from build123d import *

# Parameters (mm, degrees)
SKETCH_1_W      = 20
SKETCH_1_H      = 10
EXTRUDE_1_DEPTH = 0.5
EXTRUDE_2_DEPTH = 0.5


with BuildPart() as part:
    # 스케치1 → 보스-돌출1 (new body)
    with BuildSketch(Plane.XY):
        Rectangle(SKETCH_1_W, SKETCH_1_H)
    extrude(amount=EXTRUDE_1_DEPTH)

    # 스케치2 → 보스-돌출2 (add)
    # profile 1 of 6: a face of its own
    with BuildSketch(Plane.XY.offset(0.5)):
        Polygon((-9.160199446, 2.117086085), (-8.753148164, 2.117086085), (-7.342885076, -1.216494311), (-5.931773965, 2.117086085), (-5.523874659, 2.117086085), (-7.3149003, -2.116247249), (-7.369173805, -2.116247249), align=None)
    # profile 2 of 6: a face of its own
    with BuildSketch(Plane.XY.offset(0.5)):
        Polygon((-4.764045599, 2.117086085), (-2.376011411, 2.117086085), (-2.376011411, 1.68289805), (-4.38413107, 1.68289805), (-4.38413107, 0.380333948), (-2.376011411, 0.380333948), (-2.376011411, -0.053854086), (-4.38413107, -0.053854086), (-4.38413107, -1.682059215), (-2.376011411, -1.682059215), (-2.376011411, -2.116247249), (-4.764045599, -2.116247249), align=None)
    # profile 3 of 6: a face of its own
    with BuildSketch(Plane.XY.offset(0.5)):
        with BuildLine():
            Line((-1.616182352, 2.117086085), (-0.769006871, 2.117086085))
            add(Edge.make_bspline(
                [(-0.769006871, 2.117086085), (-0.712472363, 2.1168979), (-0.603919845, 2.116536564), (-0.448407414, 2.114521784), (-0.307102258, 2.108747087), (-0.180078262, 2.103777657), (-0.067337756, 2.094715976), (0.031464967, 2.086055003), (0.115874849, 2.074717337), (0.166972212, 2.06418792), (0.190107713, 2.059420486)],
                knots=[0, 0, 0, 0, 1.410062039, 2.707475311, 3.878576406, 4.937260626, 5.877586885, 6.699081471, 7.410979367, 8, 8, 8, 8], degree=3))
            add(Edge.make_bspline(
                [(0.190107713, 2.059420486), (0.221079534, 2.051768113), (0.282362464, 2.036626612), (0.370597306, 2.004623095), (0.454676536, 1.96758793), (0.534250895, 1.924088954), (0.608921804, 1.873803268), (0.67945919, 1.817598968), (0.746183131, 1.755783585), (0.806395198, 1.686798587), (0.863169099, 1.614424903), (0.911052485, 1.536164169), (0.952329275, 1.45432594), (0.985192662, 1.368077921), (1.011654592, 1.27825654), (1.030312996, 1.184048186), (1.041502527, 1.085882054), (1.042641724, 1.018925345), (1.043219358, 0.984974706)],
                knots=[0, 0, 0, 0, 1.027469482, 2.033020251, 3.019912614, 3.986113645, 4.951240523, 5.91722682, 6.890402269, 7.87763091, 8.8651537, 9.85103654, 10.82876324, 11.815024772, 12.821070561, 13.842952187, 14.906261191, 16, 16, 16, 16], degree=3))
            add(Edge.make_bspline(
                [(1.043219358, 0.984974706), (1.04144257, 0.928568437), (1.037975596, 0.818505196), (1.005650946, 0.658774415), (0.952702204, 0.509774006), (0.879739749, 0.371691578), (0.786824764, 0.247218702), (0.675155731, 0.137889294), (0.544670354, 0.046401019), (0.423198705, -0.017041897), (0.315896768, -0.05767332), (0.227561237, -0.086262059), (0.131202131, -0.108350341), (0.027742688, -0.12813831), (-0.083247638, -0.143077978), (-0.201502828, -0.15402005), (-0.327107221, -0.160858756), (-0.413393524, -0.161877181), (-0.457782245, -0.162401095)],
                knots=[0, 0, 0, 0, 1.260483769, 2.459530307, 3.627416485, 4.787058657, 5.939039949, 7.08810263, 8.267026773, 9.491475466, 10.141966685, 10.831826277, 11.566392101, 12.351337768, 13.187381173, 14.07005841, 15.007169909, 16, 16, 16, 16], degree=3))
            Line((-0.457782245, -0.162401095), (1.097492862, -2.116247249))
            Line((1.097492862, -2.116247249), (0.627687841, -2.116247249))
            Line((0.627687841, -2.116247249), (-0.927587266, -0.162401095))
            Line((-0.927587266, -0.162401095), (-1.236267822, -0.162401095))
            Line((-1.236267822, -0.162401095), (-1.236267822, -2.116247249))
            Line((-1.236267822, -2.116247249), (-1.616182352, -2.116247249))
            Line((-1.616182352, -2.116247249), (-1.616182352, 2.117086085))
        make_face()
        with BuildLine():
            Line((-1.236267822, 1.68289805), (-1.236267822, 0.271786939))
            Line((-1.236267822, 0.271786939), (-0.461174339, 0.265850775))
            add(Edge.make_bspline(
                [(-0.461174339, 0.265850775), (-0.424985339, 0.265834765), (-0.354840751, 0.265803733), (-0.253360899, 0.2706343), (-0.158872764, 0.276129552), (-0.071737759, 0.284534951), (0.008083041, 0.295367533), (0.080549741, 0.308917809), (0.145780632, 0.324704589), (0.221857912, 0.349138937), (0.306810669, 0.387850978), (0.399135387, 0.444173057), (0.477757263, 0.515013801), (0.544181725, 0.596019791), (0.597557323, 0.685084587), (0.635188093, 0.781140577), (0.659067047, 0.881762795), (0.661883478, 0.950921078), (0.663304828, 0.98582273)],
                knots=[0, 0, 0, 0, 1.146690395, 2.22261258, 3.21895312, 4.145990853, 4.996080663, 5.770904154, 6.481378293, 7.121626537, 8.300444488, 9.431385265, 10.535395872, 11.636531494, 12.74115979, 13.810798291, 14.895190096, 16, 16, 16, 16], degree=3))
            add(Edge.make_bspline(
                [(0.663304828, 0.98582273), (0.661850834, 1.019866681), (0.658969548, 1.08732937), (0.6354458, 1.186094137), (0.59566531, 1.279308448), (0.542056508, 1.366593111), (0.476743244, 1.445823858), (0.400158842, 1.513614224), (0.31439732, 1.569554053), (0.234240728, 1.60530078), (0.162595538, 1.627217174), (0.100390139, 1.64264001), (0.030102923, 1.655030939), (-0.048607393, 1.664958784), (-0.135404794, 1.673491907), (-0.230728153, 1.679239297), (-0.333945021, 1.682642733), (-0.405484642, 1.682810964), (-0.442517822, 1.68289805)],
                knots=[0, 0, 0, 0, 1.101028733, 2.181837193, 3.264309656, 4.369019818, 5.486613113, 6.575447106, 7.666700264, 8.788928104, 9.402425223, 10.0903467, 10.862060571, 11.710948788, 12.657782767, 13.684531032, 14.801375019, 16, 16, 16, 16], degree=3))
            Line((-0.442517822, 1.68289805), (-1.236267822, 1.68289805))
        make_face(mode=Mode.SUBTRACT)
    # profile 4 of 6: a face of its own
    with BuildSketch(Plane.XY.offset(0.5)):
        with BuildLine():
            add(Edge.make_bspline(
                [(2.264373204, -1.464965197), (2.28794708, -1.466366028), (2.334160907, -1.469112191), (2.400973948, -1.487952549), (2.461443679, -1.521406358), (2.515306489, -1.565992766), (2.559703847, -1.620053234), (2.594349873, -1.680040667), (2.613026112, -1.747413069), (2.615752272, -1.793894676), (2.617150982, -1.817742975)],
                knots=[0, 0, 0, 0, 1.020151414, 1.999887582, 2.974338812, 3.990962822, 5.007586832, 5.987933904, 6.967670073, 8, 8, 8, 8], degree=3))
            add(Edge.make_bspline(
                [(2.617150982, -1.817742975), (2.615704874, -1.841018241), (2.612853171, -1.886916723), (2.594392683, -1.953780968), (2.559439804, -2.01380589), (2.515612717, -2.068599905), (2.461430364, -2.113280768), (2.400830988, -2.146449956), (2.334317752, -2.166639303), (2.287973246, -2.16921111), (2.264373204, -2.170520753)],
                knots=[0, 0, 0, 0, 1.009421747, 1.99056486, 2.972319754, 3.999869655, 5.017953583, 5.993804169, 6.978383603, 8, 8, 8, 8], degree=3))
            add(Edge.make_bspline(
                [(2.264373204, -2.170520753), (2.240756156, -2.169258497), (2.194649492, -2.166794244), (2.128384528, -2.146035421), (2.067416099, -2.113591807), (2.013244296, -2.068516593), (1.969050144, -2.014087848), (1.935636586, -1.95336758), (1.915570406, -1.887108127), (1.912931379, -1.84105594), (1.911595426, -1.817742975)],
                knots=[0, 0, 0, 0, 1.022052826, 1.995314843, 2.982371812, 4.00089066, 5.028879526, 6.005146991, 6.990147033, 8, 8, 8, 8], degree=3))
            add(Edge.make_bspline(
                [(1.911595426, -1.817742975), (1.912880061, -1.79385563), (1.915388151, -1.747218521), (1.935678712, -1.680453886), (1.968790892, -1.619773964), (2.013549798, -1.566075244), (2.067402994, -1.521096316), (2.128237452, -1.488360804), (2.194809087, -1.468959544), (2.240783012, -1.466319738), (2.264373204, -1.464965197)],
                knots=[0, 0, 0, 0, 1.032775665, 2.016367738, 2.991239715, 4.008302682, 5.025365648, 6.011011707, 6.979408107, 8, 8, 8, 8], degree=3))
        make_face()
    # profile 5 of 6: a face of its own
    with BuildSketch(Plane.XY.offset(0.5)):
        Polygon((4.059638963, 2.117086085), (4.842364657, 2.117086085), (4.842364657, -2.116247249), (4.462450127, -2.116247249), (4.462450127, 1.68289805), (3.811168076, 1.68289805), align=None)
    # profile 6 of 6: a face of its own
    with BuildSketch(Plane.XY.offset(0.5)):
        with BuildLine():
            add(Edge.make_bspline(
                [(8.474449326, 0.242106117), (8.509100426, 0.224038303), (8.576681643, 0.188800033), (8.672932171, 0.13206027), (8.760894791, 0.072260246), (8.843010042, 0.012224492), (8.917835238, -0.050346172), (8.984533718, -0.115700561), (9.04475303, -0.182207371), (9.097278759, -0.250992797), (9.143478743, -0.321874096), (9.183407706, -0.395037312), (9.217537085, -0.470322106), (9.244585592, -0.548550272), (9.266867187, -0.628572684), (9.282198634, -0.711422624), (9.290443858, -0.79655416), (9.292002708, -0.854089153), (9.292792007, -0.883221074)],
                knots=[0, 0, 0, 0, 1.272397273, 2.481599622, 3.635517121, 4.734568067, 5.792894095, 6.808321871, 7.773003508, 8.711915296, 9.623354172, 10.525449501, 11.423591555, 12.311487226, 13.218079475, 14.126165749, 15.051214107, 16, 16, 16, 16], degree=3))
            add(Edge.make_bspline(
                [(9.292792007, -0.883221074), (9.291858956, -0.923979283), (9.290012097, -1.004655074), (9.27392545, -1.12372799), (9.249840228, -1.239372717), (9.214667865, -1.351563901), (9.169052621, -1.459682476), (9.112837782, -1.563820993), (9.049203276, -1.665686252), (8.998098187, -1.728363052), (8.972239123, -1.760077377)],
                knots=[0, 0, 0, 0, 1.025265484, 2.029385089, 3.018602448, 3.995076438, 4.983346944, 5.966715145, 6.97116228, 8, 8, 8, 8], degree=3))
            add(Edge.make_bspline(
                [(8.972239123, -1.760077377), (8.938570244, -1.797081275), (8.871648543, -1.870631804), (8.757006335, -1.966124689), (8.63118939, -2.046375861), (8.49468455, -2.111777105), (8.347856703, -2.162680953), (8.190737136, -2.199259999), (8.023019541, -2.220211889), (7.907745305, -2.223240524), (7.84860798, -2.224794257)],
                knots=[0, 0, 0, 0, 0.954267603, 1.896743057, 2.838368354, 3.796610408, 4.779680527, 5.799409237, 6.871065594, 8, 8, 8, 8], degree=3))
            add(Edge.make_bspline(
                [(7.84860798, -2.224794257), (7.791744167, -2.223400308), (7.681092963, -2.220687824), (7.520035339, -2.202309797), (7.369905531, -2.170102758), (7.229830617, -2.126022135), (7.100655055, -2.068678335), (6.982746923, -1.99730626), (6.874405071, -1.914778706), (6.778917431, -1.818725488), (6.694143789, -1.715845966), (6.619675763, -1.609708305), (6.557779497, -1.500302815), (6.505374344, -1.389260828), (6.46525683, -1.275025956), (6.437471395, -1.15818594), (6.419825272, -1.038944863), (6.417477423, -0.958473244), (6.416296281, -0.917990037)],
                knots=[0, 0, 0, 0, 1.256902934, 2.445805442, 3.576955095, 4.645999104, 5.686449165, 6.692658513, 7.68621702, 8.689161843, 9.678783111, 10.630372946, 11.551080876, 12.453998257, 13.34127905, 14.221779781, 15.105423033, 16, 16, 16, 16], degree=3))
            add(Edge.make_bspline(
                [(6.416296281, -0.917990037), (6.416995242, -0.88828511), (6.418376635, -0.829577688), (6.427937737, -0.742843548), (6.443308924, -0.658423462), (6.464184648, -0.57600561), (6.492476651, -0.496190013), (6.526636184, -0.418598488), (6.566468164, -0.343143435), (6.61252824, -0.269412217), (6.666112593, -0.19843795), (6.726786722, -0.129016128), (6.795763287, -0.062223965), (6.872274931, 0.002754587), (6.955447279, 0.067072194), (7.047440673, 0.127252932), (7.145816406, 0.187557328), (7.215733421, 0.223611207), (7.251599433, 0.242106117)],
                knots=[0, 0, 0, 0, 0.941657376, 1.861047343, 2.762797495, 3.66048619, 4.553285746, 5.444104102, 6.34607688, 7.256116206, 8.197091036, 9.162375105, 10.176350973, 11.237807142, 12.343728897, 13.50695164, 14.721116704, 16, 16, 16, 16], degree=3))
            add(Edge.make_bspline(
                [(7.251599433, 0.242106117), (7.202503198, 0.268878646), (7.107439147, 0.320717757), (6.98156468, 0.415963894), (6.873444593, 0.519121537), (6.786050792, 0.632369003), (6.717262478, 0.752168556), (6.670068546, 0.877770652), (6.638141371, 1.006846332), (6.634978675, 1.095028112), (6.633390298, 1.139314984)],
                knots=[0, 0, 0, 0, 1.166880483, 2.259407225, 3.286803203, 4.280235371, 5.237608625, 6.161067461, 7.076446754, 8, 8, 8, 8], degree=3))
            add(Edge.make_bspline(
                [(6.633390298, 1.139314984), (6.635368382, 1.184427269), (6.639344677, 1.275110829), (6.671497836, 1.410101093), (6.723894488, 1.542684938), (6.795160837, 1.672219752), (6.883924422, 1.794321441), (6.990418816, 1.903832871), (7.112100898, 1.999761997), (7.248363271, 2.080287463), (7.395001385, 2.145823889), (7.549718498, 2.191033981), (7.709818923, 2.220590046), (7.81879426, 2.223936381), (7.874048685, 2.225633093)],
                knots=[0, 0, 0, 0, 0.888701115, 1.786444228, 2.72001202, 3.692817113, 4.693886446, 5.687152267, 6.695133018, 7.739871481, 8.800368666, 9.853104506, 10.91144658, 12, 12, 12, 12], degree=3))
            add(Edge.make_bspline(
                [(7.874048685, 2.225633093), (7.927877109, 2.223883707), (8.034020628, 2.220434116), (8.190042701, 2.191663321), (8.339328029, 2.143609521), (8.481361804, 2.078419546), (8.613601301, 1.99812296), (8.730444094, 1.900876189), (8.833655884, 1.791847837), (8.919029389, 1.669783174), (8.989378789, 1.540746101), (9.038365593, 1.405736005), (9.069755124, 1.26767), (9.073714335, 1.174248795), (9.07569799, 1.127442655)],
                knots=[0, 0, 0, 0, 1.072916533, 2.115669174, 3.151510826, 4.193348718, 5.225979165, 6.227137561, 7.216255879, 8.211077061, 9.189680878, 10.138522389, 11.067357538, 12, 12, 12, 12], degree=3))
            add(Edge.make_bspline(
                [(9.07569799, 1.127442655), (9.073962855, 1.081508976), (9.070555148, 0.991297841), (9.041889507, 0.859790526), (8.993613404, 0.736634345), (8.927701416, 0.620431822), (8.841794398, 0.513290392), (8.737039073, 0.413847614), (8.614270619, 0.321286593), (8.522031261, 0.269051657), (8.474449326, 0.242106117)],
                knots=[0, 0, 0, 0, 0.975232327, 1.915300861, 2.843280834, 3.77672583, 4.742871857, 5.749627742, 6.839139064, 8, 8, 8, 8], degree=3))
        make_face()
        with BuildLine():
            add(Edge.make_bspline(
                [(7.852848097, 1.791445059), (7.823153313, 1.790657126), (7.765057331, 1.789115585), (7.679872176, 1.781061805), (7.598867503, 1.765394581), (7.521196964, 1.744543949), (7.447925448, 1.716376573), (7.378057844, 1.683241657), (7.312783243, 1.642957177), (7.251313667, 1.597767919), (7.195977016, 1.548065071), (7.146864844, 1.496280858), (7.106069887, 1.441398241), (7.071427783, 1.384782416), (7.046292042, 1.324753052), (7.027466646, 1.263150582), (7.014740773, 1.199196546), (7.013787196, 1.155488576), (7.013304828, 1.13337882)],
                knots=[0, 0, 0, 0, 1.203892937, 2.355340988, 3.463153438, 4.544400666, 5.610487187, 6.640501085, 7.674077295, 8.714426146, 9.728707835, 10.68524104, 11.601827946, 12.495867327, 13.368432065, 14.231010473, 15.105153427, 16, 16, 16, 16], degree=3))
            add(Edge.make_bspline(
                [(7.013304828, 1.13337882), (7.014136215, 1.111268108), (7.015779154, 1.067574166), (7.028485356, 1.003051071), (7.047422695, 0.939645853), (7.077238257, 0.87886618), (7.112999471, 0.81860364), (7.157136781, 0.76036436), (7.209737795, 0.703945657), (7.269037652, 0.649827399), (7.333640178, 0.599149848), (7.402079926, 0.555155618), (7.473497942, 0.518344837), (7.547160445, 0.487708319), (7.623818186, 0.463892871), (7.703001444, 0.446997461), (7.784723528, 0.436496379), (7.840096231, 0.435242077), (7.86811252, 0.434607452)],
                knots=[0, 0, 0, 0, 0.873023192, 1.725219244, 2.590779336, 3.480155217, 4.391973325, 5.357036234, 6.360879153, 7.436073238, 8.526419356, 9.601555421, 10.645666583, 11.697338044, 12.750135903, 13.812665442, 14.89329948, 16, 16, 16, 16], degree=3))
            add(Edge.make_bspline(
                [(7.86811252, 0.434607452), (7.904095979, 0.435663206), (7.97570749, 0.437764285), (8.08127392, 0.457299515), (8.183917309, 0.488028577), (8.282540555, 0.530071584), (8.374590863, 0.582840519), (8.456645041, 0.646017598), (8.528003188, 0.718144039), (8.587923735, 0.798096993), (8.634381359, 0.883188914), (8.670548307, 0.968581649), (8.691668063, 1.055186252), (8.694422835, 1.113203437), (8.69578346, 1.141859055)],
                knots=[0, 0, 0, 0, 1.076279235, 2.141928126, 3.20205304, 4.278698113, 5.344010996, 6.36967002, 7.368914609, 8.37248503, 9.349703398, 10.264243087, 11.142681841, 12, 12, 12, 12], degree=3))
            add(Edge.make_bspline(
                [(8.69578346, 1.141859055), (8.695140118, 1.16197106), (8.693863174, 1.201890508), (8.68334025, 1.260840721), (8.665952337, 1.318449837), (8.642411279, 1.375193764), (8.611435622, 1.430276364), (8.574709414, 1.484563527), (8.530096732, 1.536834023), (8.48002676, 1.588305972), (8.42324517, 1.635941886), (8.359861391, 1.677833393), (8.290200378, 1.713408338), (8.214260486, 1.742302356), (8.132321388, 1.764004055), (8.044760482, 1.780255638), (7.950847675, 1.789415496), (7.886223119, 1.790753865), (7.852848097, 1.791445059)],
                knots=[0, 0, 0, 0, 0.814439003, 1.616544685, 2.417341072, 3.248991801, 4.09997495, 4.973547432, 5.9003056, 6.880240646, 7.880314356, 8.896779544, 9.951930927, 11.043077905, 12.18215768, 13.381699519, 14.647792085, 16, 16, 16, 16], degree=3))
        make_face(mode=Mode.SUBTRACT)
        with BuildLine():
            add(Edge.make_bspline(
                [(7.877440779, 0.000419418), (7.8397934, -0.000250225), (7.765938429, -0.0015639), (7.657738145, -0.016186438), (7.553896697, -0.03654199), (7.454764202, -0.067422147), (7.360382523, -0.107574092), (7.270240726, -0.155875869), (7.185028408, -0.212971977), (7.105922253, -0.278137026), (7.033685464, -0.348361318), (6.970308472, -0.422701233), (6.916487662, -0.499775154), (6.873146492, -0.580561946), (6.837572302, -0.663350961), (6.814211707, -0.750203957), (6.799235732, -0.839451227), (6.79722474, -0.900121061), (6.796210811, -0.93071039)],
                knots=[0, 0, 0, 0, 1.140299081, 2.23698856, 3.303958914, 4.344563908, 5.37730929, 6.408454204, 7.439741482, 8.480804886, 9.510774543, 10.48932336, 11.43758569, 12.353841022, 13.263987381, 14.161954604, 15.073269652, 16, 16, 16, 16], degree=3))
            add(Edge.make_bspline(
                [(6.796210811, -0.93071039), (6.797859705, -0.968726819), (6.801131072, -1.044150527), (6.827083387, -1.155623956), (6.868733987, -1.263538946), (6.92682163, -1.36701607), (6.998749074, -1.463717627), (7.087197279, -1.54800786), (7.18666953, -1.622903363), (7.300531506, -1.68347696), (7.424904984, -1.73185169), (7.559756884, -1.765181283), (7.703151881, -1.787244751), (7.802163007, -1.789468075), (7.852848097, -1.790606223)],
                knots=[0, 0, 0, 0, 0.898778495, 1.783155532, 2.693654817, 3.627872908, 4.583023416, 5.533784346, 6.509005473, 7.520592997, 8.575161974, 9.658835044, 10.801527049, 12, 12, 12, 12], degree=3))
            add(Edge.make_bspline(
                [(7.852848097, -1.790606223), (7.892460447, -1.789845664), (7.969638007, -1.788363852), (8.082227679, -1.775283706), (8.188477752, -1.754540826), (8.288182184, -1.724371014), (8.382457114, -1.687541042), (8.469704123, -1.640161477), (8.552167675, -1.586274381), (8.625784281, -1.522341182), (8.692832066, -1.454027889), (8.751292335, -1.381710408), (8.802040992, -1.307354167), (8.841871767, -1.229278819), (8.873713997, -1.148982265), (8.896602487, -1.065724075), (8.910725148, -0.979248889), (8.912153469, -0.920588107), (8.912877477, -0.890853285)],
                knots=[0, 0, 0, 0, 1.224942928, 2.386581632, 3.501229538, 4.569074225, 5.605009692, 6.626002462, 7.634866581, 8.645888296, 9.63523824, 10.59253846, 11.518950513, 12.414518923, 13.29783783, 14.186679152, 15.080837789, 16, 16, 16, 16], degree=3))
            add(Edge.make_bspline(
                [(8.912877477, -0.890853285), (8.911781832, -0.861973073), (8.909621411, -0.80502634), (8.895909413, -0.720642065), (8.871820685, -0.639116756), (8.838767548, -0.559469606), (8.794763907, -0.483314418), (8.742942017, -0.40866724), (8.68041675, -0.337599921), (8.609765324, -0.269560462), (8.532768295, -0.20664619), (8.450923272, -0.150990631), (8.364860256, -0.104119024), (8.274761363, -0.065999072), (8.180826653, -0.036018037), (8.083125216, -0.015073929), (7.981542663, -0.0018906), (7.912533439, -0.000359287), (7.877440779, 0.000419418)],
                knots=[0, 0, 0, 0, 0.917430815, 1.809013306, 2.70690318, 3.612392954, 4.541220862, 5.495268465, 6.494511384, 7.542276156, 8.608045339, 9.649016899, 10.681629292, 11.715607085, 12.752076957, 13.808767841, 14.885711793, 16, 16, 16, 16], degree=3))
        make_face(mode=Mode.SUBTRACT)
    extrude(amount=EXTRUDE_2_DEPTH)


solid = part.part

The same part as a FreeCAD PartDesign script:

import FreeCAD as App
import Part
import Sketcher
Q = App.Units.Quantity

doc = App.newDocument("Part")
body = doc.addObject("PartDesign::Body", "Body")

# Sketch on XY plane
sketch1 = body.newObject("Sketcher::SketchObject", "Sketch")
sketch1.AttachmentSupport = (doc.getObject("XY_Plane"), [""])
sketch1.MapMode = "FlatFace"
sketch1.addGeometry([
    Part.LineSegment(App.Vector(-10, 5, 0), App.Vector(-10, -5, 0)),
    Part.LineSegment(App.Vector(-10, -5, 0), App.Vector(10, -5, 0)),
    Part.LineSegment(App.Vector(10, -5, 0), App.Vector(10, 5, 0)),
    Part.LineSegment(App.Vector(10, 5, 0), App.Vector(-10, 5, 0)),
], False)
sketch1.addConstraint([
    Sketcher.Constraint("Coincident", 0, 2, 1, 1),
    Sketcher.Constraint("Coincident", 1, 2, 2, 1),
    Sketcher.Constraint("Coincident", 2, 2, 3, 1),
    Sketcher.Constraint("Coincident", 3, 2, 0, 1),
    Sketcher.Constraint("Vertical", 0),
    Sketcher.Constraint("Horizontal", 1),
    Sketcher.Constraint("Vertical", 2),
    Sketcher.Constraint("Horizontal", 3),
    Sketcher.Constraint("Symmetric", 0, 2, 2, 2, -1, 1),
    Sketcher.Constraint("DistanceX", 1, 1, 1, 2, Q("20 mm")),
    Sketcher.Constraint("DistanceY", 0, 2, 0, 1, Q("10 mm")),
])
pad1 = body.newObject("PartDesign::Pad", "Pad")
pad1.Profile = sketch1
pad1.Length = 0.5

# Sketch on XY plane
sketch2 = body.newObject("Sketcher::SketchObject", "Sketch001")
sketch2.AttachmentSupport = (doc.getObject("XY_Plane"), [""])
sketch2.MapMode = "FlatFace"
sketch2.AttachmentOffset = App.Placement(App.Vector(0, 0, 0.5), App.Rotation())
sketch2.addGeometry([
    Part.LineSegment(App.Vector(-8.753148, 2.117086, 0), App.Vector(-9.160199, 2.117086, 0)),  # 0
    Part.LineSegment(App.Vector(-9.160199, 2.117086, 0), App.Vector(-7.369174, -2.116247, 0)),  # 1
    Part.LineSegment(App.Vector(-7.369174, -2.116247, 0), App.Vector(-7.3149, -2.116247, 0)),  # 2
    Part.LineSegment(App.Vector(-7.3149, -2.116247, 0), App.Vector(-5.523875, 2.117086, 0)),  # 3
    Part.LineSegment(App.Vector(-5.523875, 2.117086, 0), App.Vector(-5.931774, 2.117086, 0)),  # 4
    Part.LineSegment(App.Vector(-5.931774, 2.117086, 0), App.Vector(-7.342885, -1.216494, 0)),  # 5
    Part.LineSegment(App.Vector(-7.342885, -1.216494, 0), App.Vector(-8.753148, 2.117086, 0)),  # 6
    Part.LineSegment(App.Vector(-2.376011, 2.117086, 0), App.Vector(-4.764046, 2.117086, 0)),  # 7
    Part.LineSegment(App.Vector(-4.764046, 2.117086, 0), App.Vector(-4.764046, -2.116247, 0)),  # 8
    Part.LineSegment(App.Vector(-4.764046, -2.116247, 0), App.Vector(-2.376011, -2.116247, 0)),  # 9
    Part.LineSegment(App.Vector(-2.376011, -2.116247, 0), App.Vector(-2.376011, -1.682059, 0)),  # 10
    Part.LineSegment(App.Vector(-2.376011, -1.682059, 0), App.Vector(-4.384131, -1.682059, 0)),  # 11
    Part.LineSegment(App.Vector(-4.384131, -1.682059, 0), App.Vector(-4.384131, -0.053854, 0)),  # 12
    Part.LineSegment(App.Vector(-4.384131, -0.053854, 0), App.Vector(-2.376011, -0.053854, 0)),  # 13
    Part.LineSegment(App.Vector(-2.376011, -0.053854, 0), App.Vector(-2.376011, 0.380334, 0)),  # 14
    Part.LineSegment(App.Vector(-2.376011, 0.380334, 0), App.Vector(-4.384131, 0.380334, 0)),  # 15
    Part.LineSegment(App.Vector(-4.384131, 0.380334, 0), App.Vector(-4.384131, 1.682898, 0)),  # 16
    Part.LineSegment(App.Vector(-4.384131, 1.682898, 0), App.Vector(-2.376011, 1.682898, 0)),  # 17
    Part.LineSegment(App.Vector(-2.376011, 1.682898, 0), App.Vector(-2.376011, 2.117086, 0)),  # 18
    Part.LineSegment(App.Vector(-0.769007, 2.117086, 0), App.Vector(-1.616182, 2.117086, 0)),  # 19
    Part.LineSegment(App.Vector(-1.616182, 2.117086, 0), App.Vector(-1.616182, -2.116247, 0)),  # 20
    Part.LineSegment(App.Vector(-1.616182, -2.116247, 0), App.Vector(-1.236268, -2.116247, 0)),  # 21
    Part.LineSegment(App.Vector(-1.236268, -2.116247, 0), App.Vector(-1.236268, -0.162401, 0)),  # 22
    Part.LineSegment(App.Vector(-1.236268, -0.162401, 0), App.Vector(-0.927587, -0.162401, 0)),  # 23
    Part.LineSegment(App.Vector(-0.927587, -0.162401, 0), App.Vector(0.627688, -2.116247, 0)),  # 24
    Part.LineSegment(App.Vector(0.627688, -2.116247, 0), App.Vector(1.097493, -2.116247, 0)),  # 25
    Part.LineSegment(App.Vector(1.097493, -2.116247, 0), App.Vector(-0.457782, -0.162401, 0)),  # 26
    Part.BSplineCurve([App.Vector(1.043219, 0.984975, 0), App.Vector(1.041443, 0.928568, 0), App.Vector(1.037976, 0.818505, 0), App.Vector(1.005651, 0.658774, 0), App.Vector(0.952702, 0.509774, 0), App.Vector(0.87974, 0.371692, 0), App.Vector(0.786825, 0.247219, 0), App.Vector(0.675156, 0.137889, 0), App.Vector(0.54467, 0.046401, 0), App.Vector(0.423199, -0.017042, 0), App.Vector(0.315897, -0.057673, 0), App.Vector(0.227561, -0.086262, 0), App.Vector(0.131202, -0.10835, 0), App.Vector(0.027743, -0.128138, 0), App.Vector(-0.083248, -0.143078, 0), App.Vector(-0.201503, -0.15402, 0), App.Vector(-0.327107, -0.160859, 0), App.Vector(-0.413394, -0.161877, 0), App.Vector(-0.457782, -0.162401, 0)], [4, 1, 1, 1, 1, 1, 1, 1, 1, 1, 1, 1, 1, 1, 1, 1, 4], [0, 1.260483769, 2.459530307, 3.627416485, 4.787058657, 5.939039949, 7.08810263, 8.267026773, 9.491475466, 10.141966685, 10.831826277, 11.566392101, 12.351337768, 13.187381173, 14.07005841, 15.007169909, 16], False, 3, [1, 1, 1, 1, 1, 1, 1, 1, 1, 1, 1, 1, 1, 1, 1, 1, 1, 1, 1], False),  # 27
    Part.BSplineCurve([App.Vector(0.190108, 2.05942, 0), App.Vector(0.22108, 2.051768, 0), App.Vector(0.282362, 2.036627, 0), App.Vector(0.370597, 2.004623, 0), App.Vector(0.454677, 1.967588, 0), App.Vector(0.534251, 1.924089, 0), App.Vector(0.608922, 1.873803, 0), App.Vector(0.679459, 1.817599, 0), App.Vector(0.746183, 1.755784, 0), App.Vector(0.806395, 1.686799, 0), App.Vector(0.863169, 1.614425, 0), App.Vector(0.911052, 1.536164, 0), App.Vector(0.952329, 1.454326, 0), App.Vector(0.985193, 1.368078, 0), App.Vector(1.011655, 1.278257, 0), App.Vector(1.030313, 1.184048, 0), App.Vector(1.041503, 1.085882, 0), App.Vector(1.042642, 1.018925, 0), App.Vector(1.043219, 0.984975, 0)], [4, 1, 1, 1, 1, 1, 1, 1, 1, 1, 1, 1, 1, 1, 1, 1, 4], [0, 1.027469482, 2.033020251, 3.019912614, 3.986113645, 4.951240523, 5.91722682, 6.890402269, 7.87763091, 8.8651537, 9.85103654, 10.82876324, 11.815024772, 12.821070561, 13.842952187, 14.906261191, 16], False, 3, [1, 1, 1, 1, 1, 1, 1, 1, 1, 1, 1, 1, 1, 1, 1, 1, 1, 1, 1], False),  # 28
    Part.BSplineCurve([App.Vector(-0.769007, 2.117086, 0), App.Vector(-0.712472, 2.116898, 0), App.Vector(-0.60392, 2.116537, 0), App.Vector(-0.448407, 2.114522, 0), App.Vector(-0.307102, 2.108747, 0), App.Vector(-0.180078, 2.103778, 0), App.Vector(-0.067338, 2.094716, 0), App.Vector(0.031465, 2.086055, 0), App.Vector(0.115875, 2.074717, 0), App.Vector(0.166972, 2.064188, 0), App.Vector(0.190108, 2.05942, 0)], [4, 1, 1, 1, 1, 1, 1, 1, 4], [0, 1.410062039, 2.707475311, 3.878576406, 4.937260626, 5.877586885, 6.699081471, 7.410979367, 8], False, 3, [1, 1, 1, 1, 1, 1, 1, 1, 1, 1, 1], False),  # 29
    Part.LineSegment(App.Vector(-1.236268, 1.682898, 0), App.Vector(-0.442518, 1.682898, 0)),  # 30
    Part.BSplineCurve([App.Vector(0.663305, 0.985823, 0), App.Vector(0.661851, 1.019867, 0), App.Vector(0.65897, 1.087329, 0), App.Vector(0.635446, 1.186094, 0), App.Vector(0.595665, 1.279308, 0), App.Vector(0.542057, 1.366593, 0), App.Vector(0.476743, 1.445824, 0), App.Vector(0.400159, 1.513614, 0), App.Vector(0.314397, 1.569554, 0), App.Vector(0.234241, 1.605301, 0), App.Vector(0.162596, 1.627217, 0), App.Vector(0.10039, 1.64264, 0), App.Vector(0.030103, 1.655031, 0), App.Vector(-0.048607, 1.664959, 0), App.Vector(-0.135405, 1.673492, 0), App.Vector(-0.230728, 1.679239, 0), App.Vector(-0.333945, 1.682643, 0), App.Vector(-0.405485, 1.682811, 0), App.Vector(-0.442518, 1.682898, 0)], [4, 1, 1, 1, 1, 1, 1, 1, 1, 1, 1, 1, 1, 1, 1, 1, 4], [0, 1.101028733, 2.181837193, 3.264309656, 4.369019818, 5.486613113, 6.575447106, 7.666700264, 8.788928104, 9.402425223, 10.0903467, 10.862060571, 11.710948788, 12.657782767, 13.684531032, 14.801375019, 16], False, 3, [1, 1, 1, 1, 1, 1, 1, 1, 1, 1, 1, 1, 1, 1, 1, 1, 1, 1, 1], False),  # 31
    Part.BSplineCurve([App.Vector(-0.461174, 0.265851, 0), App.Vector(-0.424985, 0.265835, 0), App.Vector(-0.354841, 0.265804, 0), App.Vector(-0.253361, 0.270634, 0), App.Vector(-0.158873, 0.27613, 0), App.Vector(-0.071738, 0.284535, 0), App.Vector(0.008083, 0.295368, 0), App.Vector(0.08055, 0.308918, 0), App.Vector(0.145781, 0.324705, 0), App.Vector(0.221858, 0.349139, 0), App.Vector(0.306811, 0.387851, 0), App.Vector(0.399135, 0.444173, 0), App.Vector(0.477757, 0.515014, 0), App.Vector(0.544182, 0.59602, 0), App.Vector(0.597557, 0.685085, 0), App.Vector(0.635188, 0.781141, 0), App.Vector(0.659067, 0.881763, 0), App.Vector(0.661883, 0.950921, 0), App.Vector(0.663305, 0.985823, 0)], [4, 1, 1, 1, 1, 1, 1, 1, 1, 1, 1, 1, 1, 1, 1, 1, 4], [0, 1.146690395, 2.22261258, 3.21895312, 4.145990853, 4.996080663, 5.770904154, 6.481378293, 7.121626537, 8.300444488, 9.431385265, 10.535395872, 11.636531494, 12.74115979, 13.810798291, 14.895190096, 16], False, 3, [1, 1, 1, 1, 1, 1, 1, 1, 1, 1, 1, 1, 1, 1, 1, 1, 1, 1, 1], False),  # 32
    Part.LineSegment(App.Vector(-0.461174, 0.265851, 0), App.Vector(-1.236268, 0.271787, 0)),  # 33
    Part.LineSegment(App.Vector(-1.236268, 0.271787, 0), App.Vector(-1.236268, 1.682898, 0)),  # 34
    Part.BSplineCurve([App.Vector(2.264373, -1.464965, 0), App.Vector(2.287947, -1.466366, 0), App.Vector(2.334161, -1.469112, 0), App.Vector(2.400974, -1.487953, 0), App.Vector(2.461444, -1.521406, 0), App.Vector(2.515306, -1.565993, 0), App.Vector(2.559704, -1.620053, 0), App.Vector(2.59435, -1.680041, 0), App.Vector(2.613026, -1.747413, 0), App.Vector(2.615752, -1.793895, 0), App.Vector(2.617151, -1.817743, 0)], [4, 1, 1, 1, 1, 1, 1, 1, 4], [0, 1.020151414, 1.999887582, 2.974338812, 3.990962822, 5.007586832, 5.987933904, 6.967670073, 8], False, 3, [1, 1, 1, 1, 1, 1, 1, 1, 1, 1, 1], False),  # 35
    Part.BSplineCurve([App.Vector(1.911595, -1.817743, 0), App.Vector(1.91288, -1.793856, 0), App.Vector(1.915388, -1.747219, 0), App.Vector(1.935679, -1.680454, 0), App.Vector(1.968791, -1.619774, 0), App.Vector(2.01355, -1.566075, 0), App.Vector(2.067403, -1.521096, 0), App.Vector(2.128237, -1.488361, 0), App.Vector(2.194809, -1.46896, 0), App.Vector(2.240783, -1.46632, 0), App.Vector(2.264373, -1.464965, 0)], [4, 1, 1, 1, 1, 1, 1, 1, 4], [0, 1.032775665, 2.016367738, 2.991239715, 4.008302682, 5.025365648, 6.011011707, 6.979408107, 8], False, 3, [1, 1, 1, 1, 1, 1, 1, 1, 1, 1, 1], False),  # 36
    Part.BSplineCurve([App.Vector(2.264373, -2.170521, 0), App.Vector(2.240756, -2.169258, 0), App.Vector(2.194649, -2.166794, 0), App.Vector(2.128385, -2.146035, 0), App.Vector(2.067416, -2.113592, 0), App.Vector(2.013244, -2.068517, 0), App.Vector(1.96905, -2.014088, 0), App.Vector(1.935637, -1.953368, 0), App.Vector(1.91557, -1.887108, 0), App.Vector(1.912931, -1.841056, 0), App.Vector(1.911595, -1.817743, 0)], [4, 1, 1, 1, 1, 1, 1, 1, 4], [0, 1.022052826, 1.995314843, 2.982371812, 4.00089066, 5.028879526, 6.005146991, 6.990147033, 8], False, 3, [1, 1, 1, 1, 1, 1, 1, 1, 1, 1, 1], False),  # 37
    Part.BSplineCurve([App.Vector(2.617151, -1.817743, 0), App.Vector(2.615705, -1.841018, 0), App.Vector(2.612853, -1.886917, 0), App.Vector(2.594393, -1.953781, 0), App.Vector(2.55944, -2.013806, 0), App.Vector(2.515613, -2.0686, 0), App.Vector(2.46143, -2.113281, 0), App.Vector(2.400831, -2.14645, 0), App.Vector(2.334318, -2.166639, 0), App.Vector(2.287973, -2.169211, 0), App.Vector(2.264373, -2.170521, 0)], [4, 1, 1, 1, 1, 1, 1, 1, 4], [0, 1.009421747, 1.99056486, 2.972319754, 3.999869655, 5.017953583, 5.993804169, 6.978383603, 8], False, 3, [1, 1, 1, 1, 1, 1, 1, 1, 1, 1, 1], False),  # 38
    Part.LineSegment(App.Vector(4.842365, 2.117086, 0), App.Vector(4.059639, 2.117086, 0)),  # 39
    Part.LineSegment(App.Vector(4.059639, 2.117086, 0), App.Vector(3.811168, 1.682898, 0)),  # 40
    Part.LineSegment(App.Vector(3.811168, 1.682898, 0), App.Vector(4.46245, 1.682898, 0)),  # 41
    Part.LineSegment(App.Vector(4.46245, 1.682898, 0), App.Vector(4.46245, -2.116247, 0)),  # 42
    Part.LineSegment(App.Vector(4.46245, -2.116247, 0), App.Vector(4.842365, -2.116247, 0)),  # 43
    Part.LineSegment(App.Vector(4.842365, -2.116247, 0), App.Vector(4.842365, 2.117086, 0)),  # 44
    Part.BSplineCurve([App.Vector(8.474449, 0.242106, 0), App.Vector(8.5091, 0.224038, 0), App.Vector(8.576682, 0.1888, 0), App.Vector(8.672932, 0.13206, 0), App.Vector(8.760895, 0.07226, 0), App.Vector(8.84301, 0.012224, 0), App.Vector(8.917835, -0.050346, 0), App.Vector(8.984534, -0.115701, 0), App.Vector(9.044753, -0.182207, 0), App.Vector(9.097279, -0.250993, 0), App.Vector(9.143479, -0.321874, 0), App.Vector(9.183408, -0.395037, 0), App.Vector(9.217537, -0.470322, 0), App.Vector(9.244586, -0.54855, 0), App.Vector(9.266867, -0.628573, 0), App.Vector(9.282199, -0.711423, 0), App.Vector(9.290444, -0.796554, 0), App.Vector(9.292003, -0.854089, 0), App.Vector(9.292792, -0.883221, 0)], [4, 1, 1, 1, 1, 1, 1, 1, 1, 1, 1, 1, 1, 1, 1, 1, 4], [0, 1.272397273, 2.481599622, 3.635517121, 4.734568067, 5.792894095, 6.808321871, 7.773003508, 8.711915296, 9.623354172, 10.525449501, 11.423591555, 12.311487226, 13.218079475, 14.126165749, 15.051214107, 16], False, 3, [1, 1, 1, 1, 1, 1, 1, 1, 1, 1, 1, 1, 1, 1, 1, 1, 1, 1, 1], False),  # 45
    Part.BSplineCurve([App.Vector(9.075698, 1.127443, 0), App.Vector(9.073963, 1.081509, 0), App.Vector(9.070555, 0.991298, 0), App.Vector(9.04189, 0.859791, 0), App.Vector(8.993613, 0.736634, 0), App.Vector(8.927701, 0.620432, 0), App.Vector(8.841794, 0.51329, 0), App.Vector(8.737039, 0.413848, 0), App.Vector(8.614271, 0.321287, 0), App.Vector(8.522031, 0.269052, 0), App.Vector(8.474449, 0.242106, 0)], [4, 1, 1, 1, 1, 1, 1, 1, 4], [0, 0.975232327, 1.915300861, 2.843280834, 3.77672583, 4.742871857, 5.749627742, 6.839139064, 8], False, 3, [1, 1, 1, 1, 1, 1, 1, 1, 1, 1, 1], False),  # 46
    Part.BSplineCurve([App.Vector(7.874049, 2.225633, 0), App.Vector(7.927877, 2.223884, 0), App.Vector(8.034021, 2.220434, 0), App.Vector(8.190043, 2.191663, 0), App.Vector(8.339328, 2.14361, 0), App.Vector(8.481362, 2.07842, 0), App.Vector(8.613601, 1.998123, 0), App.Vector(8.730444, 1.900876, 0), App.Vector(8.833656, 1.791848, 0), App.Vector(8.919029, 1.669783, 0), App.Vector(8.989379, 1.540746, 0), App.Vector(9.038366, 1.405736, 0), App.Vector(9.069755, 1.26767, 0), App.Vector(9.073714, 1.174249, 0), App.Vector(9.075698, 1.127443, 0)], [4, 1, 1, 1, 1, 1, 1, 1, 1, 1, 1, 1, 4], [0, 1.072916533, 2.115669174, 3.151510826, 4.193348718, 5.225979165, 6.227137561, 7.216255879, 8.211077061, 9.189680878, 10.138522389, 11.067357538, 12], False, 3, [1, 1, 1, 1, 1, 1, 1, 1, 1, 1, 1, 1, 1, 1, 1], False),  # 47
    Part.BSplineCurve([App.Vector(6.63339, 1.139315, 0), App.Vector(6.635368, 1.184427, 0), App.Vector(6.639345, 1.275111, 0), App.Vector(6.671498, 1.410101, 0), App.Vector(6.723894, 1.542685, 0), App.Vector(6.795161, 1.67222, 0), App.Vector(6.883924, 1.794321, 0), App.Vector(6.990419, 1.903833, 0), App.Vector(7.112101, 1.999762, 0), App.Vector(7.248363, 2.080287, 0), App.Vector(7.395001, 2.145824, 0), App.Vector(7.549718, 2.191034, 0), App.Vector(7.709819, 2.22059, 0), App.Vector(7.818794, 2.223936, 0), App.Vector(7.874049, 2.225633, 0)], [4, 1, 1, 1, 1, 1, 1, 1, 1, 1, 1, 1, 4], [0, 0.888701115, 1.786444228, 2.72001202, 3.692817113, 4.693886446, 5.687152267, 6.695133018, 7.739871481, 8.800368666, 9.853104506, 10.91144658, 12], False, 3, [1, 1, 1, 1, 1, 1, 1, 1, 1, 1, 1, 1, 1, 1, 1], False),  # 48
    Part.BSplineCurve([App.Vector(7.251599, 0.242106, 0), App.Vector(7.202503, 0.268879, 0), App.Vector(7.107439, 0.320718, 0), App.Vector(6.981565, 0.415964, 0), App.Vector(6.873445, 0.519122, 0), App.Vector(6.786051, 0.632369, 0), App.Vector(6.717262, 0.752169, 0), App.Vector(6.670069, 0.877771, 0), App.Vector(6.638141, 1.006846, 0), App.Vector(6.634979, 1.095028, 0), App.Vector(6.63339, 1.139315, 0)], [4, 1, 1, 1, 1, 1, 1, 1, 4], [0, 1.166880483, 2.259407225, 3.286803203, 4.280235371, 5.237608625, 6.161067461, 7.076446754, 8], False, 3, [1, 1, 1, 1, 1, 1, 1, 1, 1, 1, 1], False),  # 49
    Part.BSplineCurve([App.Vector(6.416296, -0.91799, 0), App.Vector(6.416995, -0.888285, 0), App.Vector(6.418377, -0.829578, 0), App.Vector(6.427938, -0.742844, 0), App.Vector(6.443309, -0.658423, 0), App.Vector(6.464185, -0.576006, 0), App.Vector(6.492477, -0.49619, 0), App.Vector(6.526636, -0.418598, 0), App.Vector(6.566468, -0.343143, 0), App.Vector(6.612528, -0.269412, 0), App.Vector(6.666113, -0.198438, 0), App.Vector(6.726787, -0.129016, 0), App.Vector(6.795763, -0.062224, 0), App.Vector(6.872275, 0.002755, 0), App.Vector(6.955447, 0.067072, 0), App.Vector(7.047441, 0.127253, 0), App.Vector(7.145816, 0.187557, 0), App.Vector(7.215733, 0.223611, 0), App.Vector(7.251599, 0.242106, 0)], [4, 1, 1, 1, 1, 1, 1, 1, 1, 1, 1, 1, 1, 1, 1, 1, 4], [0, 0.941657376, 1.861047343, 2.762797495, 3.66048619, 4.553285746, 5.444104102, 6.34607688, 7.256116206, 8.197091036, 9.162375105, 10.176350973, 11.237807142, 12.343728897, 13.50695164, 14.721116704, 16], False, 3, [1, 1, 1, 1, 1, 1, 1, 1, 1, 1, 1, 1, 1, 1, 1, 1, 1, 1, 1], False),  # 50
    Part.BSplineCurve([App.Vector(7.848608, -2.224794, 0), App.Vector(7.791744, -2.2234, 0), App.Vector(7.681093, -2.220688, 0), App.Vector(7.520035, -2.20231, 0), App.Vector(7.369906, -2.170103, 0), App.Vector(7.229831, -2.126022, 0), App.Vector(7.100655, -2.068678, 0), App.Vector(6.982747, -1.997306, 0), App.Vector(6.874405, -1.914779, 0), App.Vector(6.778917, -1.818725, 0), App.Vector(6.694144, -1.715846, 0), App.Vector(6.619676, -1.609708, 0), App.Vector(6.557779, -1.500303, 0), App.Vector(6.505374, -1.389261, 0), App.Vector(6.465257, -1.275026, 0), App.Vector(6.437471, -1.158186, 0), App.Vector(6.419825, -1.038945, 0), App.Vector(6.417477, -0.958473, 0), App.Vector(6.416296, -0.91799, 0)], [4, 1, 1, 1, 1, 1, 1, 1, 1, 1, 1, 1, 1, 1, 1, 1, 4], [0, 1.256902934, 2.445805442, 3.576955095, 4.645999104, 5.686449165, 6.692658513, 7.68621702, 8.689161843, 9.678783111, 10.630372946, 11.551080876, 12.453998257, 13.34127905, 14.221779781, 15.105423033, 16], False, 3, [1, 1, 1, 1, 1, 1, 1, 1, 1, 1, 1, 1, 1, 1, 1, 1, 1, 1, 1], False),  # 51
    Part.BSplineCurve([App.Vector(8.972239, -1.760077, 0), App.Vector(8.93857, -1.797081, 0), App.Vector(8.871649, -1.870632, 0), App.Vector(8.757006, -1.966125, 0), App.Vector(8.631189, -2.046376, 0), App.Vector(8.494685, -2.111777, 0), App.Vector(8.347857, -2.162681, 0), App.Vector(8.190737, -2.19926, 0), App.Vector(8.02302, -2.220212, 0), App.Vector(7.907745, -2.223241, 0), App.Vector(7.848608, -2.224794, 0)], [4, 1, 1, 1, 1, 1, 1, 1, 4], [0, 0.954267603, 1.896743057, 2.838368354, 3.796610408, 4.779680527, 5.799409237, 6.871065594, 8], False, 3, [1, 1, 1, 1, 1, 1, 1, 1, 1, 1, 1], False),  # 52
    Part.BSplineCurve([App.Vector(9.292792, -0.883221, 0), App.Vector(9.291859, -0.923979, 0), App.Vector(9.290012, -1.004655, 0), App.Vector(9.273925, -1.123728, 0), App.Vector(9.24984, -1.239373, 0), App.Vector(9.214668, -1.351564, 0), App.Vector(9.169053, -1.459682, 0), App.Vector(9.112838, -1.563821, 0), App.Vector(9.049203, -1.665686, 0), App.Vector(8.998098, -1.728363, 0), App.Vector(8.972239, -1.760077, 0)], [4, 1, 1, 1, 1, 1, 1, 1, 4], [0, 1.025265484, 2.029385089, 3.018602448, 3.995076438, 4.983346944, 5.966715145, 6.97116228, 8], False, 3, [1, 1, 1, 1, 1, 1, 1, 1, 1, 1, 1], False),  # 53
    Part.BSplineCurve([App.Vector(8.912877, -0.890853, 0), App.Vector(8.911782, -0.861973, 0), App.Vector(8.909621, -0.805026, 0), App.Vector(8.895909, -0.720642, 0), App.Vector(8.871821, -0.639117, 0), App.Vector(8.838768, -0.55947, 0), App.Vector(8.794764, -0.483314, 0), App.Vector(8.742942, -0.408667, 0), App.Vector(8.680417, -0.3376, 0), App.Vector(8.609765, -0.26956, 0), App.Vector(8.532768, -0.206646, 0), App.Vector(8.450923, -0.150991, 0), App.Vector(8.36486, -0.104119, 0), App.Vector(8.274761, -0.065999, 0), App.Vector(8.180827, -0.036018, 0), App.Vector(8.083125, -0.015074, 0), App.Vector(7.981543, -0.001891, 0), App.Vector(7.912533, -0.000359, 0), App.Vector(7.877441, 0.000419, 0)], [4, 1, 1, 1, 1, 1, 1, 1, 1, 1, 1, 1, 1, 1, 1, 1, 4], [0, 0.917430815, 1.809013306, 2.70690318, 3.612392954, 4.541220862, 5.495268465, 6.494511384, 7.542276156, 8.608045339, 9.649016899, 10.681629292, 11.715607085, 12.752076957, 13.808767841, 14.885711793, 16], False, 3, [1, 1, 1, 1, 1, 1, 1, 1, 1, 1, 1, 1, 1, 1, 1, 1, 1, 1, 1], False),  # 54
    Part.BSplineCurve([App.Vector(7.852848, -1.790606, 0), App.Vector(7.89246, -1.789846, 0), App.Vector(7.969638, -1.788364, 0), App.Vector(8.082228, -1.775284, 0), App.Vector(8.188478, -1.754541, 0), App.Vector(8.288182, -1.724371, 0), App.Vector(8.382457, -1.687541, 0), App.Vector(8.469704, -1.640161, 0), App.Vector(8.552168, -1.586274, 0), App.Vector(8.625784, -1.522341, 0), App.Vector(8.692832, -1.454028, 0), App.Vector(8.751292, -1.38171, 0), App.Vector(8.802041, -1.307354, 0), App.Vector(8.841872, -1.229279, 0), App.Vector(8.873714, -1.148982, 0), App.Vector(8.896602, -1.065724, 0), App.Vector(8.910725, -0.979249, 0), App.Vector(8.912153, -0.920588, 0), App.Vector(8.912877, -0.890853, 0)], [4, 1, 1, 1, 1, 1, 1, 1, 1, 1, 1, 1, 1, 1, 1, 1, 4], [0, 1.224942928, 2.386581632, 3.501229538, 4.569074225, 5.605009692, 6.626002462, 7.634866581, 8.645888296, 9.63523824, 10.59253846, 11.518950513, 12.414518923, 13.29783783, 14.186679152, 15.080837789, 16], False, 3, [1, 1, 1, 1, 1, 1, 1, 1, 1, 1, 1, 1, 1, 1, 1, 1, 1, 1, 1], False),  # 55
    Part.BSplineCurve([App.Vector(6.796211, -0.93071, 0), App.Vector(6.79786, -0.968727, 0), App.Vector(6.801131, -1.044151, 0), App.Vector(6.827083, -1.155624, 0), App.Vector(6.868734, -1.263539, 0), App.Vector(6.926822, -1.367016, 0), App.Vector(6.998749, -1.463718, 0), App.Vector(7.087197, -1.548008, 0), App.Vector(7.18667, -1.622903, 0), App.Vector(7.300532, -1.683477, 0), App.Vector(7.424905, -1.731852, 0), App.Vector(7.559757, -1.765181, 0), App.Vector(7.703152, -1.787245, 0), App.Vector(7.802163, -1.789468, 0), App.Vector(7.852848, -1.790606, 0)], [4, 1, 1, 1, 1, 1, 1, 1, 1, 1, 1, 1, 4], [0, 0.898778495, 1.783155532, 2.693654817, 3.627872908, 4.583023416, 5.533784346, 6.509005473, 7.520592997, 8.575161974, 9.658835044, 10.801527049, 12], False, 3, [1, 1, 1, 1, 1, 1, 1, 1, 1, 1, 1, 1, 1, 1, 1], False),  # 56
    Part.BSplineCurve([App.Vector(7.877441, 0.000419, 0), App.Vector(7.839793, -0.00025, 0), App.Vector(7.765938, -0.001564, 0), App.Vector(7.657738, -0.016186, 0), App.Vector(7.553897, -0.036542, 0), App.Vector(7.454764, -0.067422, 0), App.Vector(7.360383, -0.107574, 0), App.Vector(7.270241, -0.155876, 0), App.Vector(7.185028, -0.212972, 0), App.Vector(7.105922, -0.278137, 0), App.Vector(7.033685, -0.348361, 0), App.Vector(6.970308, -0.422701, 0), App.Vector(6.916488, -0.499775, 0), App.Vector(6.873146, -0.580562, 0), App.Vector(6.837572, -0.663351, 0), App.Vector(6.814212, -0.750204, 0), App.Vector(6.799236, -0.839451, 0), App.Vector(6.797225, -0.900121, 0), App.Vector(6.796211, -0.93071, 0)], [4, 1, 1, 1, 1, 1, 1, 1, 1, 1, 1, 1, 1, 1, 1, 1, 4], [0, 1.140299081, 2.23698856, 3.303958914, 4.344563908, 5.37730929, 6.408454204, 7.439741482, 8.480804886, 9.510774543, 10.48932336, 11.43758569, 12.353841022, 13.263987381, 14.161954604, 15.073269652, 16], False, 3, [1, 1, 1, 1, 1, 1, 1, 1, 1, 1, 1, 1, 1, 1, 1, 1, 1, 1, 1], False),  # 57
    Part.BSplineCurve([App.Vector(8.695783, 1.141859, 0), App.Vector(8.69514, 1.161971, 0), App.Vector(8.693863, 1.201891, 0), App.Vector(8.68334, 1.260841, 0), App.Vector(8.665952, 1.31845, 0), App.Vector(8.642411, 1.375194, 0), App.Vector(8.611436, 1.430276, 0), App.Vector(8.574709, 1.484564, 0), App.Vector(8.530097, 1.536834, 0), App.Vector(8.480027, 1.588306, 0), App.Vector(8.423245, 1.635942, 0), App.Vector(8.359861, 1.677833, 0), App.Vector(8.2902, 1.713408, 0), App.Vector(8.21426, 1.742302, 0), App.Vector(8.132321, 1.764004, 0), App.Vector(8.04476, 1.780256, 0), App.Vector(7.950848, 1.789415, 0), App.Vector(7.886223, 1.790754, 0), App.Vector(7.852848, 1.791445, 0)], [4, 1, 1, 1, 1, 1, 1, 1, 1, 1, 1, 1, 1, 1, 1, 1, 4], [0, 0.814439003, 1.616544685, 2.417341072, 3.248991801, 4.09997495, 4.973547432, 5.9003056, 6.880240646, 7.880314356, 8.896779544, 9.951930927, 11.043077905, 12.18215768, 13.381699519, 14.647792085, 16], False, 3, [1, 1, 1, 1, 1, 1, 1, 1, 1, 1, 1, 1, 1, 1, 1, 1, 1, 1, 1], False),  # 58
    Part.BSplineCurve([App.Vector(7.868113, 0.434607, 0), App.Vector(7.904096, 0.435663, 0), App.Vector(7.975707, 0.437764, 0), App.Vector(8.081274, 0.4573, 0), App.Vector(8.183917, 0.488029, 0), App.Vector(8.282541, 0.530072, 0), App.Vector(8.374591, 0.582841, 0), App.Vector(8.456645, 0.646018, 0), App.Vector(8.528003, 0.718144, 0), App.Vector(8.587924, 0.798097, 0), App.Vector(8.634381, 0.883189, 0), App.Vector(8.670548, 0.968582, 0), App.Vector(8.691668, 1.055186, 0), App.Vector(8.694423, 1.113203, 0), App.Vector(8.695783, 1.141859, 0)], [4, 1, 1, 1, 1, 1, 1, 1, 1, 1, 1, 1, 4], [0, 1.076279235, 2.141928126, 3.20205304, 4.278698113, 5.344010996, 6.36967002, 7.368914609, 8.37248503, 9.349703398, 10.264243087, 11.142681841, 12], False, 3, [1, 1, 1, 1, 1, 1, 1, 1, 1, 1, 1, 1, 1, 1, 1], False),  # 59
    Part.BSplineCurve([App.Vector(7.013305, 1.133379, 0), App.Vector(7.014136, 1.111268, 0), App.Vector(7.015779, 1.067574, 0), App.Vector(7.028485, 1.003051, 0), App.Vector(7.047423, 0.939646, 0), App.Vector(7.077238, 0.878866, 0), App.Vector(7.112999, 0.818604, 0), App.Vector(7.157137, 0.760364, 0), App.Vector(7.209738, 0.703946, 0), App.Vector(7.269038, 0.649827, 0), App.Vector(7.33364, 0.59915, 0), App.Vector(7.40208, 0.555156, 0), App.Vector(7.473498, 0.518345, 0), App.Vector(7.54716, 0.487708, 0), App.Vector(7.623818, 0.463893, 0), App.Vector(7.703001, 0.446997, 0), App.Vector(7.784724, 0.436496, 0), App.Vector(7.840096, 0.435242, 0), App.Vector(7.868113, 0.434607, 0)], [4, 1, 1, 1, 1, 1, 1, 1, 1, 1, 1, 1, 1, 1, 1, 1, 4], [0, 0.873023192, 1.725219244, 2.590779336, 3.480155217, 4.391973325, 5.357036234, 6.360879153, 7.436073238, 8.526419356, 9.601555421, 10.645666583, 11.697338044, 12.750135903, 13.812665442, 14.89329948, 16], False, 3, [1, 1, 1, 1, 1, 1, 1, 1, 1, 1, 1, 1, 1, 1, 1, 1, 1, 1, 1], False),  # 60
    Part.BSplineCurve([App.Vector(7.852848, 1.791445, 0), App.Vector(7.823153, 1.790657, 0), App.Vector(7.765057, 1.789116, 0), App.Vector(7.679872, 1.781062, 0), App.Vector(7.598868, 1.765395, 0), App.Vector(7.521197, 1.744544, 0), App.Vector(7.447925, 1.716377, 0), App.Vector(7.378058, 1.683242, 0), App.Vector(7.312783, 1.642957, 0), App.Vector(7.251314, 1.597768, 0), App.Vector(7.195977, 1.548065, 0), App.Vector(7.146865, 1.496281, 0), App.Vector(7.10607, 1.441398, 0), App.Vector(7.071428, 1.384782, 0), App.Vector(7.046292, 1.324753, 0), App.Vector(7.027467, 1.263151, 0), App.Vector(7.014741, 1.199197, 0), App.Vector(7.013787, 1.155489, 0), App.Vector(7.013305, 1.133379, 0)], [4, 1, 1, 1, 1, 1, 1, 1, 1, 1, 1, 1, 1, 1, 1, 1, 4], [0, 1.203892937, 2.355340988, 3.463153438, 4.544400666, 5.610487187, 6.640501085, 7.674077295, 8.714426146, 9.728707835, 10.68524104, 11.601827946, 12.495867327, 13.368432065, 14.231010473, 15.105153427, 16], False, 3, [1, 1, 1, 1, 1, 1, 1, 1, 1, 1, 1, 1, 1, 1, 1, 1, 1, 1, 1], False),  # 61
], False)
sketch2.addConstraint([
    Sketcher.Constraint("Block", 27),
    Sketcher.Constraint("Block", 28),
    Sketcher.Constraint("Block", 29),
    Sketcher.Constraint("Block", 31),
    Sketcher.Constraint("Block", 32),
    Sketcher.Constraint("Block", 35),
    Sketcher.Constraint("Block", 36),
    Sketcher.Constraint("Block", 37),
    Sketcher.Constraint("Block", 38),
    Sketcher.Constraint("Block", 45),
    Sketcher.Constraint("Block", 46),
    Sketcher.Constraint("Block", 47),
    Sketcher.Constraint("Block", 48),
    Sketcher.Constraint("Block", 49),
    Sketcher.Constraint("Block", 50),
    Sketcher.Constraint("Block", 51),
    Sketcher.Constraint("Block", 52),
    Sketcher.Constraint("Block", 53),
    Sketcher.Constraint("Block", 54),
    Sketcher.Constraint("Block", 55),
    Sketcher.Constraint("Block", 56),
    Sketcher.Constraint("Block", 57),
    Sketcher.Constraint("Block", 58),
    Sketcher.Constraint("Block", 59),
    Sketcher.Constraint("Block", 60),
    Sketcher.Constraint("Block", 61),
    Sketcher.Constraint("Coincident", 0, 2, 1, 1),
    Sketcher.Constraint("Coincident", 1, 2, 2, 1),
    Sketcher.Constraint("Coincident", 2, 2, 3, 1),
    Sketcher.Constraint("Coincident", 3, 2, 4, 1),
    Sketcher.Constraint("Coincident", 4, 2, 5, 1),
    Sketcher.Constraint("Coincident", 5, 2, 6, 1),
    Sketcher.Constraint("Coincident", 6, 2, 0, 1),
    Sketcher.Constraint("Coincident", 7, 2, 8, 1),
    Sketcher.Constraint("Coincident", 8, 2, 9, 1),
    Sketcher.Constraint("Coincident", 9, 2, 10, 1),
    Sketcher.Constraint("Coincident", 10, 2, 11, 1),
    Sketcher.Constraint("Coincident", 11, 2, 12, 1),
    Sketcher.Constraint("Coincident", 12, 2, 13, 1),
    Sketcher.Constraint("Coincident", 13, 2, 14, 1),
    Sketcher.Constraint("Coincident", 14, 2, 15, 1),
    Sketcher.Constraint("Coincident", 15, 2, 16, 1),
    Sketcher.Constraint("Coincident", 16, 2, 17, 1),
    Sketcher.Constraint("Coincident", 17, 2, 18, 1),
    Sketcher.Constraint("Coincident", 18, 2, 7, 1),
    Sketcher.Constraint("Coincident", 19, 2, 20, 1),
    Sketcher.Constraint("Coincident", 20, 2, 21, 1),
    Sketcher.Constraint("Coincident", 21, 2, 22, 1),
    Sketcher.Constraint("Coincident", 22, 2, 23, 1),
    Sketcher.Constraint("Coincident", 23, 2, 24, 1),
    Sketcher.Constraint("Coincident", 24, 2, 25, 1),
    Sketcher.Constraint("Coincident", 25, 2, 26, 1),
    Sketcher.Constraint("Coincident", 26, 2, 27, 2),
    Sketcher.Constraint("Coincident", 29, 1, 19, 1),
    Sketcher.Constraint("Coincident", 30, 2, 31, 2),
    Sketcher.Constraint("Coincident", 32, 1, 33, 1),
    Sketcher.Constraint("Coincident", 33, 2, 34, 1),
    Sketcher.Constraint("Coincident", 34, 2, 30, 1),
    Sketcher.Constraint("Coincident", 39, 2, 40, 1),
    Sketcher.Constraint("Coincident", 40, 2, 41, 1),
    Sketcher.Constraint("Coincident", 41, 2, 42, 1),
    Sketcher.Constraint("Coincident", 42, 2, 43, 1),
    Sketcher.Constraint("Coincident", 43, 2, 44, 1),
    Sketcher.Constraint("Coincident", 44, 2, 39, 1),
    Sketcher.Constraint("Horizontal", 0),
    Sketcher.Constraint("Horizontal", 2),
    Sketcher.Constraint("Horizontal", 4),
    Sketcher.Constraint("Horizontal", 7),
    Sketcher.Constraint("Vertical", 8),
    Sketcher.Constraint("Horizontal", 9),
    Sketcher.Constraint("Vertical", 10),
    Sketcher.Constraint("Horizontal", 11),
    Sketcher.Constraint("Vertical", 12),
    Sketcher.Constraint("Horizontal", 13),
    Sketcher.Constraint("Vertical", 14),
    Sketcher.Constraint("Horizontal", 15),
    Sketcher.Constraint("Vertical", 16),
    Sketcher.Constraint("Horizontal", 17),
    Sketcher.Constraint("Vertical", 18),
    Sketcher.Constraint("Horizontal", 19),
    Sketcher.Constraint("Vertical", 20),
    Sketcher.Constraint("Horizontal", 21),
    Sketcher.Constraint("Vertical", 22),
    Sketcher.Constraint("Horizontal", 23),
    Sketcher.Constraint("Horizontal", 25),
    Sketcher.Constraint("Horizontal", 30),
    Sketcher.Constraint("Vertical", 34),
    Sketcher.Constraint("Horizontal", 39),
    Sketcher.Constraint("Horizontal", 41),
    Sketcher.Constraint("Vertical", 42),
    Sketcher.Constraint("Horizontal", 43),
    Sketcher.Constraint("Vertical", 44),
    Sketcher.Constraint("DistanceX", 4, 2, 4, 1, Q("0.407899 mm")),
    Sketcher.Constraint("DistanceX", 0, 2, 0, 1, Q("0.407051 mm")),
    Sketcher.Constraint("DistanceX", 11, 2, 11, 1, Q("2.00812 mm")),
    Sketcher.Constraint("DistanceX", 13, 1, 13, 2, Q("2.00812 mm")),
    Sketcher.Constraint("DistanceX", 15, 2, 15, 1, Q("2.00812 mm")),
    Sketcher.Constraint("DistanceX", 17, 1, 17, 2, Q("2.00812 mm")),
    Sketcher.Constraint("DistanceX", 23, 1, 23, 2, Q("0.308681 mm")),
    Sketcher.Constraint("DistanceX", 30, 1, 30, 2, Q("0.79375 mm")),
    Sketcher.Constraint("DistanceY", 10, 1, 10, 2, Q("0.434188 mm")),
    Sketcher.Constraint("DistanceY", 14, 1, 14, 2, Q("0.434188 mm")),
    Sketcher.Constraint("DistanceY", 18, 1, 18, 2, Q("0.434188 mm")),
    Sketcher.Constraint("DistanceY", 34, 1, 34, 2, Q("1.411111 mm")),
    Sketcher.Constraint("DistanceX", 0, 2, -1, 1, Q("9.160199 mm")),
    Sketcher.Constraint("DistanceX", 2, 2, -1, 1, Q("7.3149 mm")),
    Sketcher.Constraint("DistanceY", -1, 1, 16, 2, Q("1.682898 mm")),
    Sketcher.Constraint("DistanceY", 22, 2, -1, 1, Q("0.162401 mm")),
    Sketcher.Constraint("DistanceY", -1, 1, 40, 2, Q("1.682898 mm")),
    Sketcher.Constraint("DistanceX", 1, 2, 3, 2, Q("1.845299 mm")),
    Sketcher.Constraint("DistanceX", 9, 2, 24, 2, Q("3.003699 mm")),
    Sketcher.Constraint("DistanceX", 2, 1, 2, 2, Q("0.054274 mm")),
    Sketcher.Constraint("DistanceX", 7, 2, 7, 1, Q("2.388034 mm")),
    Sketcher.Constraint("DistanceX", 19, 2, 19, 1, Q("0.847175 mm")),
    Sketcher.Constraint("DistanceX", 21, 1, 21, 2, Q("0.379915 mm")),
    Sketcher.Constraint("DistanceX", 25, 1, 25, 2, Q("0.469805 mm")),
    Sketcher.Constraint("DistanceX", 39, 2, 39, 1, Q("0.782726 mm")),
    Sketcher.Constraint("DistanceX", 41, 1, 41, 2, Q("0.651282 mm")),
    Sketcher.Constraint("DistanceX", 43, 1, 43, 2, Q("0.379915 mm")),
    Sketcher.Constraint("DistanceY", 8, 2, 8, 1, Q("4.233333 mm")),
    Sketcher.Constraint("DistanceY", 12, 1, 12, 2, Q("1.628205 mm")),
    Sketcher.Constraint("DistanceY", 20, 2, 20, 1, Q("4.233333 mm")),
    Sketcher.Constraint("DistanceY", 42, 2, 42, 1, Q("3.799145 mm")),
    Sketcher.Constraint("DistanceY", 44, 1, 44, 2, Q("4.233333 mm")),
    Sketcher.Constraint("DistanceX", 9, 2, -1, 1, Q("2.376011 mm")),
    Sketcher.Constraint("DistanceX", -1, 1, 39, 2, Q("4.059639 mm")),
    Sketcher.Constraint("DistanceX", 1, 2, 5, 2, Q("0.026289 mm")),
    Sketcher.Constraint("DistanceY", 5, 2, 4, 2, Q("3.33358 mm")),
    Sketcher.Constraint("DistanceY", 5, 2, 0, 2, Q("3.33358 mm")),
    Sketcher.Constraint("DistanceY", 5, 2, 7, 2, Q("3.33358 mm")),
    Sketcher.Constraint("DistanceY", 2, 2, 10, 2, Q("0.434188 mm")),
    Sketcher.Constraint("Distance", 24, Q("2.497278 mm")),
])
pad2 = body.newObject("PartDesign::Pad", "Pad001")
pad2.Profile = sketch2
pad2.Length = 0.5

doc.recompute()
